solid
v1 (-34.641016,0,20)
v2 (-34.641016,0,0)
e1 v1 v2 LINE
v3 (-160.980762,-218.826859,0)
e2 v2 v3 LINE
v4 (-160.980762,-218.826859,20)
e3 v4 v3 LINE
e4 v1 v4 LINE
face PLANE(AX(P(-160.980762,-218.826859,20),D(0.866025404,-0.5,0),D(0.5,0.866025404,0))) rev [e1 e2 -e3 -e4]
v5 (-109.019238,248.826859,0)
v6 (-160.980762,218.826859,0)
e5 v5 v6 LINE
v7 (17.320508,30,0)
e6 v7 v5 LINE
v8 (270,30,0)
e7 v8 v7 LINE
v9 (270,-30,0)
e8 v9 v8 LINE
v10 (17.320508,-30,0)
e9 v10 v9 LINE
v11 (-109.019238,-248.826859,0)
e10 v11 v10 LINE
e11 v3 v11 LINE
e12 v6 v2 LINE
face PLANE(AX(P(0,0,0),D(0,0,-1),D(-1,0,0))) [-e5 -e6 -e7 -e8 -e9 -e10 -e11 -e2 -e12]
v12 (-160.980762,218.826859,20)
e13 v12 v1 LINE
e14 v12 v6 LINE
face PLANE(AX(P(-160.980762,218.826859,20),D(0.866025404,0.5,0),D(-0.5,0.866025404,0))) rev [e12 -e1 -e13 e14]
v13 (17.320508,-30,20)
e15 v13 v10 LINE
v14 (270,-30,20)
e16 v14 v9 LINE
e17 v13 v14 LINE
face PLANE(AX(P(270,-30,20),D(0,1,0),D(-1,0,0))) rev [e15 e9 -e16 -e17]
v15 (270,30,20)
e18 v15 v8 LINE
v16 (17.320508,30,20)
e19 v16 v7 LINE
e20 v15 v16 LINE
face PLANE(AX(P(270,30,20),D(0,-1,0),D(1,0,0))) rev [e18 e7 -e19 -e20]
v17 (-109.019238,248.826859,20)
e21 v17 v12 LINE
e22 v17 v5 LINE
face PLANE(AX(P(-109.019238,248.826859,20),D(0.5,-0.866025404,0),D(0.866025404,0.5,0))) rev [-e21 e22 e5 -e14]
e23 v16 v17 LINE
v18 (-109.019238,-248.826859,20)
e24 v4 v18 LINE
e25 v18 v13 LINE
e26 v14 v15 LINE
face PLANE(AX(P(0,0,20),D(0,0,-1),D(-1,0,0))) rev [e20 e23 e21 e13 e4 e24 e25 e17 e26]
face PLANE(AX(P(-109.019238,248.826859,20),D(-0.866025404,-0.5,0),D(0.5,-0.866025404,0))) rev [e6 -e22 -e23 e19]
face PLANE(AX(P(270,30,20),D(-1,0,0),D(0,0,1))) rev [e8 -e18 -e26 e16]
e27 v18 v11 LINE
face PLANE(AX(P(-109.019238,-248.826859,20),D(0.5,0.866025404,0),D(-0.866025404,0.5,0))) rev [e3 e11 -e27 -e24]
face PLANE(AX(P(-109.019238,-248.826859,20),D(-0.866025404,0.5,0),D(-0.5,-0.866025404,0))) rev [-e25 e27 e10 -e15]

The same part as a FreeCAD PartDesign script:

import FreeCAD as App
import Part
import Sketcher

V = App.Vector
Q = App.Units.Quantity

doc = App.newDocument("Part")
params = doc.addObject("Spreadsheet::Sheet", "Params")
for row, (alias, value) in enumerate([
    ("sketch1_height", "60 mm"),
    ("pad1_length", "20 mm"),
], start=1):
    params.set(f"A{row}", alias)
    params.set(f"B{row}", "=" + value)
    params.setAlias(f"B{row}", alias)

body = doc.addObject("PartDesign::Body", "Body")

# Sketch on XY plane
sketch1 = body.newObject("Sketcher::SketchObject", "Sketch")
sketch1.AttachmentSupport = (doc.getObject("XY_Plane"), [""])
sketch1.MapMode = "FlatFace"
sketch1.addGeometry([
    Part.LineSegment(V(270, 30, 0), V(17.320508, 30, 0)),  # 0
    Part.LineSegment(V(17.320508, 30, 0), V(-109.019238, 248.826859, 0)),  # 1
    Part.LineSegment(V(-109.019238, 248.826859, 0), V(-160.980762, 218.826859, 0)),  # 2
    Part.LineSegment(V(-160.980762, 218.826859, 0), V(-34.641016, 0, 0)),  # 3
    Part.LineSegment(V(-34.641016, 0, 0), V(-160.980762, -218.826859, 0)),  # 4
    Part.LineSegment(V(-160.980762, -218.826859, 0), V(-109.019238, -248.826859, 0)),  # 5
    Part.LineSegment(V(-109.019238, -248.826859, 0), V(17.320508, -30, 0)),  # 6
    Part.LineSegment(V(17.320508, -30, 0), V(270, -30, 0)),  # 7
    Part.LineSegment(V(270, -30, 0), V(270, 30, 0)),  # 8
], False)
sketch1.addConstraint([
    Sketcher.Constraint("Coincident", 0, 2, 1, 1),
    Sketcher.Constraint("Coincident", 1, 2, 2, 1),
    Sketcher.Constraint("Coincident", 2, 2, 3, 1),
    Sketcher.Constraint("Coincident", 3, 2, 4, 1),
    Sketcher.Constraint("Coincident", 4, 2, 5, 1),
    Sketcher.Constraint("Coincident", 5, 2, 6, 1),
    Sketcher.Constraint("Coincident", 6, 2, 7, 1),
    Sketcher.Constraint("Coincident", 7, 2, 8, 1),
    Sketcher.Constraint("Coincident", 8, 2, 0, 1),
    Sketcher.Constraint("Horizontal", 0),
    Sketcher.Constraint("Horizontal", 7),
    Sketcher.Constraint("Vertical", 8),
    Sketcher.Constraint("Symmetric", 2, 2, 4, 2, -1),
    Sketcher.Constraint("Symmetric", 1, 2, 5, 2, -1),
    Sketcher.Constraint("Symmetric", 0, 2, 6, 2, -1),
    Sketcher.Constraint("PointOnObject", 3, 2, -1),
    Sketcher.Constraint("Perpendicular", 1, 2),
    Sketcher.Constraint("Perpendicular", 2, 3),
    Sketcher.Constraint("Equal", 1, 3),
    Sketcher.Constraint("DistanceY", 8, 1, 8, 2, Q("60 mm")),
    Sketcher.Constraint("Angle", 1, Q("120 deg")),
    Sketcher.Constraint("DistanceX", -1, 1, 7, 2, Q("270 mm")),
    Sketcher.Constraint("DistanceX", 0, 2, 0, 1, Q("252.679492 mm")),
    Sketcher.Constraint("Distance", 1, Q("252.679492 mm")),
])
sketch1.setExpression("Constraints[19]", "Params.sketch1_height")
pad1 = body.newObject("PartDesign::Pad", "Pad")
pad1.Profile = sketch1
pad1.setExpression("Length", "Params.pad1_length")

doc.recompute()
